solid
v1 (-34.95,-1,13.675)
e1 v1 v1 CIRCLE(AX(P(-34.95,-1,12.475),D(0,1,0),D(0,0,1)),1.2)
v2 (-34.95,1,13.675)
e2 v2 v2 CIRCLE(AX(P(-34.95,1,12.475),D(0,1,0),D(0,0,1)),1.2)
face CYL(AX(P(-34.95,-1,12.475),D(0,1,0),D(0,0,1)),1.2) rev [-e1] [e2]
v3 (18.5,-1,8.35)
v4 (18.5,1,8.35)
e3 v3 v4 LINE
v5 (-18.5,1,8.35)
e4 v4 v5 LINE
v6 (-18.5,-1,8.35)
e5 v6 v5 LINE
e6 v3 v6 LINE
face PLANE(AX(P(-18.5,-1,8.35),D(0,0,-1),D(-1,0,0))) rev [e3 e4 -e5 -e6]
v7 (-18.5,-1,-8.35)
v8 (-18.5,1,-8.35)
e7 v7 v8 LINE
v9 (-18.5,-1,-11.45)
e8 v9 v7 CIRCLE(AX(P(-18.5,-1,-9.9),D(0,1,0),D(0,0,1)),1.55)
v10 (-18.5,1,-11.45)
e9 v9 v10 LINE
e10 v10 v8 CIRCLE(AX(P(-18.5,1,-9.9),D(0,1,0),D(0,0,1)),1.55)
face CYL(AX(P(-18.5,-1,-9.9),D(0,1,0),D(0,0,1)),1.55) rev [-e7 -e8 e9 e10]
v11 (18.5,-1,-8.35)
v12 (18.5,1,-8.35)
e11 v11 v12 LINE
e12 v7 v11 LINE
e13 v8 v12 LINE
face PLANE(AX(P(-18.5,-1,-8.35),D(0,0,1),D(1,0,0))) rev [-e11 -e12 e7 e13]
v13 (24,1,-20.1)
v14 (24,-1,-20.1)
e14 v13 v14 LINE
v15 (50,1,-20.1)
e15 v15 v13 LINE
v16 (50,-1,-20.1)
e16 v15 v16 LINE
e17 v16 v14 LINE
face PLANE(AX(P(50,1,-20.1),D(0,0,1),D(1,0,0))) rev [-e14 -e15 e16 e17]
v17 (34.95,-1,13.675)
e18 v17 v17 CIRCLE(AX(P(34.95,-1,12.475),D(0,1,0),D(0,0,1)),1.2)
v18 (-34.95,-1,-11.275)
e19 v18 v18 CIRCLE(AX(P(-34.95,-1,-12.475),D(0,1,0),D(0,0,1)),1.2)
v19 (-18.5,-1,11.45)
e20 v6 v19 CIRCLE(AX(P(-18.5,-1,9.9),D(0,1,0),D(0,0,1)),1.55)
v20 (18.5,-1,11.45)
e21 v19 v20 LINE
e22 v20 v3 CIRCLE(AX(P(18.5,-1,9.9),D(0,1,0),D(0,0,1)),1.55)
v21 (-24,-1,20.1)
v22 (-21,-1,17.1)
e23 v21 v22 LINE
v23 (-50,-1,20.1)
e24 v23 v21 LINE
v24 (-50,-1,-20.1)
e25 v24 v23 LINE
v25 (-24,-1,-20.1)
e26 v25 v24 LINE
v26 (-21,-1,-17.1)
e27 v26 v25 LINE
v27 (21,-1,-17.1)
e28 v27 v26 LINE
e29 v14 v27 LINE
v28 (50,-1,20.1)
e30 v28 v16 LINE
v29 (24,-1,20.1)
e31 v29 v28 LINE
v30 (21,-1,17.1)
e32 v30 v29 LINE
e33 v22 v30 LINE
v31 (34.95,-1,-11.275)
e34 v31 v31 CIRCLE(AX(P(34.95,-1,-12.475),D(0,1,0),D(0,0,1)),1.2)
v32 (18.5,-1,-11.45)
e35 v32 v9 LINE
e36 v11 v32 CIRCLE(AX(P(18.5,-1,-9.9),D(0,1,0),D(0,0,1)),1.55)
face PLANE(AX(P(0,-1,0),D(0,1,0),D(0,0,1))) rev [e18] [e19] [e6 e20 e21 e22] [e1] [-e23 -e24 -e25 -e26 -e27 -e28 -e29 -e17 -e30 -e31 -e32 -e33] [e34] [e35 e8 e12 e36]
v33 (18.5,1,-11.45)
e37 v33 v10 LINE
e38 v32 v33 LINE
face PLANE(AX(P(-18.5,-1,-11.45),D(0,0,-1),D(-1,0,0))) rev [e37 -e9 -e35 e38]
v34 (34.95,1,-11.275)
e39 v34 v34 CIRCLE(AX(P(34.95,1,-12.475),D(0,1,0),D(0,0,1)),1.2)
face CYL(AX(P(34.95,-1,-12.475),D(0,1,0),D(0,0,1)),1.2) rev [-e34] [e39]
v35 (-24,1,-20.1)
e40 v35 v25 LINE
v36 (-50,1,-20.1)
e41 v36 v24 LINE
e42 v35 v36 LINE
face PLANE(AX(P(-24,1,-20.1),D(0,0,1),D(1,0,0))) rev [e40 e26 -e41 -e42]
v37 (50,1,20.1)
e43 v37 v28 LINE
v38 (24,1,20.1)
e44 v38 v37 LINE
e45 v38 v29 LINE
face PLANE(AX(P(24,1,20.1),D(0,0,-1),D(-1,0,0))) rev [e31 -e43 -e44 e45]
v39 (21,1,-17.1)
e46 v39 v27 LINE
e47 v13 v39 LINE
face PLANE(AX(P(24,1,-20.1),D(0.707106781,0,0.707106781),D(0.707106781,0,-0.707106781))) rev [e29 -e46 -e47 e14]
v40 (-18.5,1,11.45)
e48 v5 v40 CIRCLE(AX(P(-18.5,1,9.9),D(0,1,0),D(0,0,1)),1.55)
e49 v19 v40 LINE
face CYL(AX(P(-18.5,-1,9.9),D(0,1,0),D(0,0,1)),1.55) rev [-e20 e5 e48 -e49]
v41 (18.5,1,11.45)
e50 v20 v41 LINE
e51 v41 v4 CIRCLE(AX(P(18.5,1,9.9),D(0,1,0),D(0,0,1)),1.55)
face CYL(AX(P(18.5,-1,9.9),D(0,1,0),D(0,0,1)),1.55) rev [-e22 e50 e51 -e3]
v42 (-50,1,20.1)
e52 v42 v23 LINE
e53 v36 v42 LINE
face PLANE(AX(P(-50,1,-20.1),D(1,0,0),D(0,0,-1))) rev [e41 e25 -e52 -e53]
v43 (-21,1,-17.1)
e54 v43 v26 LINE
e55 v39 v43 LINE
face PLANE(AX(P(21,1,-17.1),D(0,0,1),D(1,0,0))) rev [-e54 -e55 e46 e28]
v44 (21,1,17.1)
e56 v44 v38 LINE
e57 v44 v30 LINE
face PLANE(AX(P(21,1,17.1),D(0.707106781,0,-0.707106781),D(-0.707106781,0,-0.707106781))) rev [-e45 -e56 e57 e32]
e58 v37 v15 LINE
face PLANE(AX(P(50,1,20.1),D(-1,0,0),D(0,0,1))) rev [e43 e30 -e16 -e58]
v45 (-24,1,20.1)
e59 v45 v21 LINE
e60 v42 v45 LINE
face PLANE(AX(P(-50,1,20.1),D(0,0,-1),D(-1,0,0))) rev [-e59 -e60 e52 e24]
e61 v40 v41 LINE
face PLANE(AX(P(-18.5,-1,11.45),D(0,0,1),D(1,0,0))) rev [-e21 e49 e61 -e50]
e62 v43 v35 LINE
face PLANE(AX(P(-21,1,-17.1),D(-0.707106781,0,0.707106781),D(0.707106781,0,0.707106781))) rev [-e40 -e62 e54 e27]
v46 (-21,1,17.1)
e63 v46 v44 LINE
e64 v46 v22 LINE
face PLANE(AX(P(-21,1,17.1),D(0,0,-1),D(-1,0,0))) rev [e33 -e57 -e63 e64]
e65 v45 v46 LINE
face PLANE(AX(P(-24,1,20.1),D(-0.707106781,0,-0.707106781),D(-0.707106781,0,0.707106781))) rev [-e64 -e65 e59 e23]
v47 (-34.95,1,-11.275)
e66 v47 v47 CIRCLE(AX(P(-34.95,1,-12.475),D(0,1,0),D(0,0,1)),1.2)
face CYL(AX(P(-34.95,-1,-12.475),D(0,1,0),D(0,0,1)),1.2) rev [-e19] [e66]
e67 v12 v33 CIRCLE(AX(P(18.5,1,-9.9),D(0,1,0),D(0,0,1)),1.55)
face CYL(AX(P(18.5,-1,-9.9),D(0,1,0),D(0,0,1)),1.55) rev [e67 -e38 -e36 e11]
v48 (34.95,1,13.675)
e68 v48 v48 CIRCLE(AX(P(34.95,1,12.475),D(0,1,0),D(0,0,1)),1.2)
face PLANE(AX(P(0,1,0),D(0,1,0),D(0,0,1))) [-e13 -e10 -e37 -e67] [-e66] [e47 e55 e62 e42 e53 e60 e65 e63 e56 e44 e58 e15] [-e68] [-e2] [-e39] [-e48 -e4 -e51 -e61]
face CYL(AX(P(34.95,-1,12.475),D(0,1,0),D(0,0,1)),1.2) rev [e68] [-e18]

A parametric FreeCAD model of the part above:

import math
import FreeCAD as App
import Part
import Sketcher

V = App.Vector
Q = App.Units.Quantity

doc = App.newDocument("Part")
params = doc.addObject("Spreadsheet::Sheet", "Params")
for row, (alias, value) in enumerate([
    ("sketch1_width", "26 mm"),
    ("sketch1_width2", "42 mm"),
    ("sketch1_height", "40.2 mm"),
    ("pad1_length", "2 mm"),
    ("sketch2_diameter", "2.4 mm"),
    ("sketch2_width", "37 mm"),
    ("sketch2_radius", "1.55 mm"),
], start=1):
    params.set(f"A{row}", alias)
    params.set(f"B{row}", "=" + value)
    params.setAlias(f"B{row}", alias)

body = doc.addObject("PartDesign::Body", "Body")

# Sketch on XZ plane
sketch1 = body.newObject("Sketcher::SketchObject", "Sketch")
sketch1.AttachmentSupport = (doc.getObject("XZ_Plane"), [""])
sketch1.MapMode = "FlatFace"
sketch1.addGeometry([
    Part.LineSegment(V(-50, -20.1, 0), V(-50, 20.1, 0)),  # 0
    Part.LineSegment(V(-50, 20.1, 0), V(-24, 20.1, 0)),  # 1
    Part.LineSegment(V(-24, 20.1, 0), V(-21, 17.1, 0)),  # 2
    Part.LineSegment(V(-21, 17.1, 0), V(21, 17.1, 0)),  # 3
    Part.LineSegment(V(21, 17.1, 0), V(24, 20.1, 0)),  # 4
    Part.LineSegment(V(24, 20.1, 0), V(50, 20.1, 0)),  # 5
    Part.LineSegment(V(50, 20.1, 0), V(50, -20.1, 0)),  # 6
    Part.LineSegment(V(50, -20.1, 0), V(24, -20.1, 0)),  # 7
    Part.LineSegment(V(24, -20.1, 0), V(21, -17.1, 0)),  # 8
    Part.LineSegment(V(21, -17.1, 0), V(-21, -17.1, 0)),  # 9
    Part.LineSegment(V(-21, -17.1, 0), V(-24, -20.1, 0)),  # 10
    Part.LineSegment(V(-24, -20.1, 0), V(-50, -20.1, 0)),  # 11
], False)
sketch1.addConstraint([
    Sketcher.Constraint("Coincident", 0, 2, 1, 1),
    Sketcher.Constraint("Coincident", 1, 2, 2, 1),
    Sketcher.Constraint("Coincident", 2, 2, 3, 1),
    Sketcher.Constraint("Coincident", 3, 2, 4, 1),
    Sketcher.Constraint("Coincident", 4, 2, 5, 1),
    Sketcher.Constraint("Coincident", 5, 2, 6, 1),
    Sketcher.Constraint("Coincident", 6, 2, 7, 1),
    Sketcher.Constraint("Coincident", 7, 2, 8, 1),
    Sketcher.Constraint("Coincident", 8, 2, 9, 1),
    Sketcher.Constraint("Coincident", 9, 2, 10, 1),
    Sketcher.Constraint("Coincident", 10, 2, 11, 1),
    Sketcher.Constraint("Coincident", 11, 2, 0, 1),
    Sketcher.Constraint("Vertical", 0),
    Sketcher.Constraint("Horizontal", 1),
    Sketcher.Constraint("Horizontal", 3),
    Sketcher.Constraint("Horizontal", 5),
    Sketcher.Constraint("Vertical", 6),
    Sketcher.Constraint("Horizontal", 7),
    Sketcher.Constraint("Horizontal", 9),
    Sketcher.Constraint("Horizontal", 11),
    Sketcher.Constraint("Symmetric", 0, 2, 6, 2, -1, 1),
    Sketcher.Constraint("Symmetric", 2, 2, 8, 2, -1, 1),
    Sketcher.Constraint("Symmetric", 4, 2, 10, 2, -1, 1),
    Sketcher.Constraint("Symmetric", 1, 2, 4, 2, -2),
    Sketcher.Constraint("Perpendicular", 2, 4),
    Sketcher.Constraint("Perpendicular", 4, 8),
    Sketcher.Constraint("Perpendicular", 8, 10),
    Sketcher.Constraint("Vertical", 3, 2, 8, 2),
    Sketcher.Constraint("DistanceX", 1, 1, 1, 2, Q("26 mm")),
    Sketcher.Constraint("DistanceX", 3, 1, 3, 2, Q("42 mm")),
    Sketcher.Constraint("DistanceY", 0, 1, 0, 2, Q("40.2 mm")),
    Sketcher.Constraint("DistanceX", 0, 2, -1, 1, Q("50 mm")),
])
sketch1.setExpression("Constraints[28]", "Params.sketch1_width")
sketch1.setExpression("Constraints[29]", "Params.sketch1_width2")
sketch1.setExpression("Constraints[30]", "Params.sketch1_height")
pad1 = body.newObject("PartDesign::Pad", "Pad")
pad1.Profile = sketch1
pad1.setExpression("Length", "Params.pad1_length")
pad1.Midplane = True

# Sketch on XZ plane
sketch2 = body.newObject("Sketcher::SketchObject", "Sketch001")
sketch2.AttachmentSupport = (doc.getObject("XZ_Plane"), [""])
sketch2.MapMode = "FlatFace"
sketch2.AttachmentOffset = App.Placement(V(0, 0, -1), App.Rotation())
sketch2.addGeometry([
    Part.Circle(V(-35, -12.5, 0), V(0, 0, 1), 1.2),  # 0
    Part.Circle(V(-35, 12.5, 0), V(0, 0, 1), 1.2),  # 1
    Part.Circle(V(35, 12.5, 0), V(0, 0, 1), 1.2),  # 2
    Part.Circle(V(35, -12.5, 0), V(0, 0, 1), 1.2),  # 3
    Part.LineSegment(V(18.5, -11.4, 0), V(-18.5, -11.4, 0)),  # 4
    Part.ArcOfCircle(Part.Circle(V(-18.5, -9.9, 0), V(0, 0, 1), 1.6), math.radians(90), math.radians(270)),  # 5
    Part.LineSegment(V(-18.5, -8.3, 0), V(18.5, -8.3, 0)),  # 6
    Part.ArcOfCircle(Part.Circle(V(18.5, -9.9, 0), V(0, 0, 1), 1.6), math.radians(-90), math.radians(90)),  # 7
    Part.LineSegment(V(18.5, 8.3, 0), V(-18.5, 8.3, 0)),  # 8
    Part.ArcOfCircle(Part.Circle(V(-18.5, 9.9, 0), V(0, 0, 1), 1.6), math.radians(90), math.radians(270)),  # 9
    Part.LineSegment(V(-18.5, 11.4, 0), V(18.5, 11.4, 0)),  # 10
    Part.ArcOfCircle(Part.Circle(V(18.5, 9.9, 0), V(0, 0, 1), 1.6), math.radians(-90), math.radians(90)),  # 11
], False)
sketch2.addConstraint([
    Sketcher.Constraint("Tangent", 4, 2, 5, 2),
    Sketcher.Constraint("Tangent", 5, 1, 6, 1),
    Sketcher.Constraint("Tangent", 6, 2, 7, 2),
    Sketcher.Constraint("Tangent", 7, 1, 4, 1),
    Sketcher.Constraint("Tangent", 8, 2, 9, 2),
    Sketcher.Constraint("Tangent", 9, 1, 10, 1),
    Sketcher.Constraint("Tangent", 10, 2, 11, 2),
    Sketcher.Constraint("Tangent", 11, 1, 8, 1),
    Sketcher.Constraint("Horizontal", 4),
    Sketcher.Constraint("Horizontal", 6),
    Sketcher.Constraint("Horizontal", 8),
    Sketcher.Constraint("Horizontal", 10),
    Sketcher.Constraint("Equal", 0, 1),
    Sketcher.Constraint("Equal", 1, 2),
    Sketcher.Constraint("Equal", 2, 3),
    Sketcher.Constraint("Equal", 7, 9),
    Sketcher.Constraint("Symmetric", 0, 3, 2, 3, -1, 1),
    Sketcher.Constraint("Symmetric", 1, 3, 3, 3, -1, 1),
    Sketcher.Constraint("Symmetric", 7, 3, 9, 3, -1, 1),
    Sketcher.Constraint("Symmetric", 1, 3, 2, 3, -2),
    Sketcher.Constraint("Vertical", 5, 3, 9, 3),
    Sketcher.Constraint("Vertical", 7, 3, 11, 3),
    Sketcher.Constraint("Diameter", 0, Q("2.4 mm")),
    Sketcher.Constraint("DistanceX", 4, 2, 4, 1, Q("37 mm")),
    Sketcher.Constraint("Radius", 5, Q("1.55 mm")),
    Sketcher.Constraint("DistanceY", 5, 3, -1, 1, Q("9.9 mm")),
    Sketcher.Constraint("DistanceX", 1, 3, 2, 3, Q("69.9 mm")),
    Sketcher.Constraint("DistanceY", 0, 3, 1, 3, Q("24.95 mm")),
])
sketch2.setExpression("Constraints[22]", "Params.sketch2_diameter")
sketch2.setExpression("Constraints[23]", "Params.sketch2_width")
sketch2.setExpression("Constraints[24]", "Params.sketch2_radius")
pocket1 = body.newObject("PartDesign::Pocket", "Pocket")
pocket1.Profile = sketch2
pocket1.Type = "ThroughAll"
pocket1.Midplane = True

doc.recompute()
